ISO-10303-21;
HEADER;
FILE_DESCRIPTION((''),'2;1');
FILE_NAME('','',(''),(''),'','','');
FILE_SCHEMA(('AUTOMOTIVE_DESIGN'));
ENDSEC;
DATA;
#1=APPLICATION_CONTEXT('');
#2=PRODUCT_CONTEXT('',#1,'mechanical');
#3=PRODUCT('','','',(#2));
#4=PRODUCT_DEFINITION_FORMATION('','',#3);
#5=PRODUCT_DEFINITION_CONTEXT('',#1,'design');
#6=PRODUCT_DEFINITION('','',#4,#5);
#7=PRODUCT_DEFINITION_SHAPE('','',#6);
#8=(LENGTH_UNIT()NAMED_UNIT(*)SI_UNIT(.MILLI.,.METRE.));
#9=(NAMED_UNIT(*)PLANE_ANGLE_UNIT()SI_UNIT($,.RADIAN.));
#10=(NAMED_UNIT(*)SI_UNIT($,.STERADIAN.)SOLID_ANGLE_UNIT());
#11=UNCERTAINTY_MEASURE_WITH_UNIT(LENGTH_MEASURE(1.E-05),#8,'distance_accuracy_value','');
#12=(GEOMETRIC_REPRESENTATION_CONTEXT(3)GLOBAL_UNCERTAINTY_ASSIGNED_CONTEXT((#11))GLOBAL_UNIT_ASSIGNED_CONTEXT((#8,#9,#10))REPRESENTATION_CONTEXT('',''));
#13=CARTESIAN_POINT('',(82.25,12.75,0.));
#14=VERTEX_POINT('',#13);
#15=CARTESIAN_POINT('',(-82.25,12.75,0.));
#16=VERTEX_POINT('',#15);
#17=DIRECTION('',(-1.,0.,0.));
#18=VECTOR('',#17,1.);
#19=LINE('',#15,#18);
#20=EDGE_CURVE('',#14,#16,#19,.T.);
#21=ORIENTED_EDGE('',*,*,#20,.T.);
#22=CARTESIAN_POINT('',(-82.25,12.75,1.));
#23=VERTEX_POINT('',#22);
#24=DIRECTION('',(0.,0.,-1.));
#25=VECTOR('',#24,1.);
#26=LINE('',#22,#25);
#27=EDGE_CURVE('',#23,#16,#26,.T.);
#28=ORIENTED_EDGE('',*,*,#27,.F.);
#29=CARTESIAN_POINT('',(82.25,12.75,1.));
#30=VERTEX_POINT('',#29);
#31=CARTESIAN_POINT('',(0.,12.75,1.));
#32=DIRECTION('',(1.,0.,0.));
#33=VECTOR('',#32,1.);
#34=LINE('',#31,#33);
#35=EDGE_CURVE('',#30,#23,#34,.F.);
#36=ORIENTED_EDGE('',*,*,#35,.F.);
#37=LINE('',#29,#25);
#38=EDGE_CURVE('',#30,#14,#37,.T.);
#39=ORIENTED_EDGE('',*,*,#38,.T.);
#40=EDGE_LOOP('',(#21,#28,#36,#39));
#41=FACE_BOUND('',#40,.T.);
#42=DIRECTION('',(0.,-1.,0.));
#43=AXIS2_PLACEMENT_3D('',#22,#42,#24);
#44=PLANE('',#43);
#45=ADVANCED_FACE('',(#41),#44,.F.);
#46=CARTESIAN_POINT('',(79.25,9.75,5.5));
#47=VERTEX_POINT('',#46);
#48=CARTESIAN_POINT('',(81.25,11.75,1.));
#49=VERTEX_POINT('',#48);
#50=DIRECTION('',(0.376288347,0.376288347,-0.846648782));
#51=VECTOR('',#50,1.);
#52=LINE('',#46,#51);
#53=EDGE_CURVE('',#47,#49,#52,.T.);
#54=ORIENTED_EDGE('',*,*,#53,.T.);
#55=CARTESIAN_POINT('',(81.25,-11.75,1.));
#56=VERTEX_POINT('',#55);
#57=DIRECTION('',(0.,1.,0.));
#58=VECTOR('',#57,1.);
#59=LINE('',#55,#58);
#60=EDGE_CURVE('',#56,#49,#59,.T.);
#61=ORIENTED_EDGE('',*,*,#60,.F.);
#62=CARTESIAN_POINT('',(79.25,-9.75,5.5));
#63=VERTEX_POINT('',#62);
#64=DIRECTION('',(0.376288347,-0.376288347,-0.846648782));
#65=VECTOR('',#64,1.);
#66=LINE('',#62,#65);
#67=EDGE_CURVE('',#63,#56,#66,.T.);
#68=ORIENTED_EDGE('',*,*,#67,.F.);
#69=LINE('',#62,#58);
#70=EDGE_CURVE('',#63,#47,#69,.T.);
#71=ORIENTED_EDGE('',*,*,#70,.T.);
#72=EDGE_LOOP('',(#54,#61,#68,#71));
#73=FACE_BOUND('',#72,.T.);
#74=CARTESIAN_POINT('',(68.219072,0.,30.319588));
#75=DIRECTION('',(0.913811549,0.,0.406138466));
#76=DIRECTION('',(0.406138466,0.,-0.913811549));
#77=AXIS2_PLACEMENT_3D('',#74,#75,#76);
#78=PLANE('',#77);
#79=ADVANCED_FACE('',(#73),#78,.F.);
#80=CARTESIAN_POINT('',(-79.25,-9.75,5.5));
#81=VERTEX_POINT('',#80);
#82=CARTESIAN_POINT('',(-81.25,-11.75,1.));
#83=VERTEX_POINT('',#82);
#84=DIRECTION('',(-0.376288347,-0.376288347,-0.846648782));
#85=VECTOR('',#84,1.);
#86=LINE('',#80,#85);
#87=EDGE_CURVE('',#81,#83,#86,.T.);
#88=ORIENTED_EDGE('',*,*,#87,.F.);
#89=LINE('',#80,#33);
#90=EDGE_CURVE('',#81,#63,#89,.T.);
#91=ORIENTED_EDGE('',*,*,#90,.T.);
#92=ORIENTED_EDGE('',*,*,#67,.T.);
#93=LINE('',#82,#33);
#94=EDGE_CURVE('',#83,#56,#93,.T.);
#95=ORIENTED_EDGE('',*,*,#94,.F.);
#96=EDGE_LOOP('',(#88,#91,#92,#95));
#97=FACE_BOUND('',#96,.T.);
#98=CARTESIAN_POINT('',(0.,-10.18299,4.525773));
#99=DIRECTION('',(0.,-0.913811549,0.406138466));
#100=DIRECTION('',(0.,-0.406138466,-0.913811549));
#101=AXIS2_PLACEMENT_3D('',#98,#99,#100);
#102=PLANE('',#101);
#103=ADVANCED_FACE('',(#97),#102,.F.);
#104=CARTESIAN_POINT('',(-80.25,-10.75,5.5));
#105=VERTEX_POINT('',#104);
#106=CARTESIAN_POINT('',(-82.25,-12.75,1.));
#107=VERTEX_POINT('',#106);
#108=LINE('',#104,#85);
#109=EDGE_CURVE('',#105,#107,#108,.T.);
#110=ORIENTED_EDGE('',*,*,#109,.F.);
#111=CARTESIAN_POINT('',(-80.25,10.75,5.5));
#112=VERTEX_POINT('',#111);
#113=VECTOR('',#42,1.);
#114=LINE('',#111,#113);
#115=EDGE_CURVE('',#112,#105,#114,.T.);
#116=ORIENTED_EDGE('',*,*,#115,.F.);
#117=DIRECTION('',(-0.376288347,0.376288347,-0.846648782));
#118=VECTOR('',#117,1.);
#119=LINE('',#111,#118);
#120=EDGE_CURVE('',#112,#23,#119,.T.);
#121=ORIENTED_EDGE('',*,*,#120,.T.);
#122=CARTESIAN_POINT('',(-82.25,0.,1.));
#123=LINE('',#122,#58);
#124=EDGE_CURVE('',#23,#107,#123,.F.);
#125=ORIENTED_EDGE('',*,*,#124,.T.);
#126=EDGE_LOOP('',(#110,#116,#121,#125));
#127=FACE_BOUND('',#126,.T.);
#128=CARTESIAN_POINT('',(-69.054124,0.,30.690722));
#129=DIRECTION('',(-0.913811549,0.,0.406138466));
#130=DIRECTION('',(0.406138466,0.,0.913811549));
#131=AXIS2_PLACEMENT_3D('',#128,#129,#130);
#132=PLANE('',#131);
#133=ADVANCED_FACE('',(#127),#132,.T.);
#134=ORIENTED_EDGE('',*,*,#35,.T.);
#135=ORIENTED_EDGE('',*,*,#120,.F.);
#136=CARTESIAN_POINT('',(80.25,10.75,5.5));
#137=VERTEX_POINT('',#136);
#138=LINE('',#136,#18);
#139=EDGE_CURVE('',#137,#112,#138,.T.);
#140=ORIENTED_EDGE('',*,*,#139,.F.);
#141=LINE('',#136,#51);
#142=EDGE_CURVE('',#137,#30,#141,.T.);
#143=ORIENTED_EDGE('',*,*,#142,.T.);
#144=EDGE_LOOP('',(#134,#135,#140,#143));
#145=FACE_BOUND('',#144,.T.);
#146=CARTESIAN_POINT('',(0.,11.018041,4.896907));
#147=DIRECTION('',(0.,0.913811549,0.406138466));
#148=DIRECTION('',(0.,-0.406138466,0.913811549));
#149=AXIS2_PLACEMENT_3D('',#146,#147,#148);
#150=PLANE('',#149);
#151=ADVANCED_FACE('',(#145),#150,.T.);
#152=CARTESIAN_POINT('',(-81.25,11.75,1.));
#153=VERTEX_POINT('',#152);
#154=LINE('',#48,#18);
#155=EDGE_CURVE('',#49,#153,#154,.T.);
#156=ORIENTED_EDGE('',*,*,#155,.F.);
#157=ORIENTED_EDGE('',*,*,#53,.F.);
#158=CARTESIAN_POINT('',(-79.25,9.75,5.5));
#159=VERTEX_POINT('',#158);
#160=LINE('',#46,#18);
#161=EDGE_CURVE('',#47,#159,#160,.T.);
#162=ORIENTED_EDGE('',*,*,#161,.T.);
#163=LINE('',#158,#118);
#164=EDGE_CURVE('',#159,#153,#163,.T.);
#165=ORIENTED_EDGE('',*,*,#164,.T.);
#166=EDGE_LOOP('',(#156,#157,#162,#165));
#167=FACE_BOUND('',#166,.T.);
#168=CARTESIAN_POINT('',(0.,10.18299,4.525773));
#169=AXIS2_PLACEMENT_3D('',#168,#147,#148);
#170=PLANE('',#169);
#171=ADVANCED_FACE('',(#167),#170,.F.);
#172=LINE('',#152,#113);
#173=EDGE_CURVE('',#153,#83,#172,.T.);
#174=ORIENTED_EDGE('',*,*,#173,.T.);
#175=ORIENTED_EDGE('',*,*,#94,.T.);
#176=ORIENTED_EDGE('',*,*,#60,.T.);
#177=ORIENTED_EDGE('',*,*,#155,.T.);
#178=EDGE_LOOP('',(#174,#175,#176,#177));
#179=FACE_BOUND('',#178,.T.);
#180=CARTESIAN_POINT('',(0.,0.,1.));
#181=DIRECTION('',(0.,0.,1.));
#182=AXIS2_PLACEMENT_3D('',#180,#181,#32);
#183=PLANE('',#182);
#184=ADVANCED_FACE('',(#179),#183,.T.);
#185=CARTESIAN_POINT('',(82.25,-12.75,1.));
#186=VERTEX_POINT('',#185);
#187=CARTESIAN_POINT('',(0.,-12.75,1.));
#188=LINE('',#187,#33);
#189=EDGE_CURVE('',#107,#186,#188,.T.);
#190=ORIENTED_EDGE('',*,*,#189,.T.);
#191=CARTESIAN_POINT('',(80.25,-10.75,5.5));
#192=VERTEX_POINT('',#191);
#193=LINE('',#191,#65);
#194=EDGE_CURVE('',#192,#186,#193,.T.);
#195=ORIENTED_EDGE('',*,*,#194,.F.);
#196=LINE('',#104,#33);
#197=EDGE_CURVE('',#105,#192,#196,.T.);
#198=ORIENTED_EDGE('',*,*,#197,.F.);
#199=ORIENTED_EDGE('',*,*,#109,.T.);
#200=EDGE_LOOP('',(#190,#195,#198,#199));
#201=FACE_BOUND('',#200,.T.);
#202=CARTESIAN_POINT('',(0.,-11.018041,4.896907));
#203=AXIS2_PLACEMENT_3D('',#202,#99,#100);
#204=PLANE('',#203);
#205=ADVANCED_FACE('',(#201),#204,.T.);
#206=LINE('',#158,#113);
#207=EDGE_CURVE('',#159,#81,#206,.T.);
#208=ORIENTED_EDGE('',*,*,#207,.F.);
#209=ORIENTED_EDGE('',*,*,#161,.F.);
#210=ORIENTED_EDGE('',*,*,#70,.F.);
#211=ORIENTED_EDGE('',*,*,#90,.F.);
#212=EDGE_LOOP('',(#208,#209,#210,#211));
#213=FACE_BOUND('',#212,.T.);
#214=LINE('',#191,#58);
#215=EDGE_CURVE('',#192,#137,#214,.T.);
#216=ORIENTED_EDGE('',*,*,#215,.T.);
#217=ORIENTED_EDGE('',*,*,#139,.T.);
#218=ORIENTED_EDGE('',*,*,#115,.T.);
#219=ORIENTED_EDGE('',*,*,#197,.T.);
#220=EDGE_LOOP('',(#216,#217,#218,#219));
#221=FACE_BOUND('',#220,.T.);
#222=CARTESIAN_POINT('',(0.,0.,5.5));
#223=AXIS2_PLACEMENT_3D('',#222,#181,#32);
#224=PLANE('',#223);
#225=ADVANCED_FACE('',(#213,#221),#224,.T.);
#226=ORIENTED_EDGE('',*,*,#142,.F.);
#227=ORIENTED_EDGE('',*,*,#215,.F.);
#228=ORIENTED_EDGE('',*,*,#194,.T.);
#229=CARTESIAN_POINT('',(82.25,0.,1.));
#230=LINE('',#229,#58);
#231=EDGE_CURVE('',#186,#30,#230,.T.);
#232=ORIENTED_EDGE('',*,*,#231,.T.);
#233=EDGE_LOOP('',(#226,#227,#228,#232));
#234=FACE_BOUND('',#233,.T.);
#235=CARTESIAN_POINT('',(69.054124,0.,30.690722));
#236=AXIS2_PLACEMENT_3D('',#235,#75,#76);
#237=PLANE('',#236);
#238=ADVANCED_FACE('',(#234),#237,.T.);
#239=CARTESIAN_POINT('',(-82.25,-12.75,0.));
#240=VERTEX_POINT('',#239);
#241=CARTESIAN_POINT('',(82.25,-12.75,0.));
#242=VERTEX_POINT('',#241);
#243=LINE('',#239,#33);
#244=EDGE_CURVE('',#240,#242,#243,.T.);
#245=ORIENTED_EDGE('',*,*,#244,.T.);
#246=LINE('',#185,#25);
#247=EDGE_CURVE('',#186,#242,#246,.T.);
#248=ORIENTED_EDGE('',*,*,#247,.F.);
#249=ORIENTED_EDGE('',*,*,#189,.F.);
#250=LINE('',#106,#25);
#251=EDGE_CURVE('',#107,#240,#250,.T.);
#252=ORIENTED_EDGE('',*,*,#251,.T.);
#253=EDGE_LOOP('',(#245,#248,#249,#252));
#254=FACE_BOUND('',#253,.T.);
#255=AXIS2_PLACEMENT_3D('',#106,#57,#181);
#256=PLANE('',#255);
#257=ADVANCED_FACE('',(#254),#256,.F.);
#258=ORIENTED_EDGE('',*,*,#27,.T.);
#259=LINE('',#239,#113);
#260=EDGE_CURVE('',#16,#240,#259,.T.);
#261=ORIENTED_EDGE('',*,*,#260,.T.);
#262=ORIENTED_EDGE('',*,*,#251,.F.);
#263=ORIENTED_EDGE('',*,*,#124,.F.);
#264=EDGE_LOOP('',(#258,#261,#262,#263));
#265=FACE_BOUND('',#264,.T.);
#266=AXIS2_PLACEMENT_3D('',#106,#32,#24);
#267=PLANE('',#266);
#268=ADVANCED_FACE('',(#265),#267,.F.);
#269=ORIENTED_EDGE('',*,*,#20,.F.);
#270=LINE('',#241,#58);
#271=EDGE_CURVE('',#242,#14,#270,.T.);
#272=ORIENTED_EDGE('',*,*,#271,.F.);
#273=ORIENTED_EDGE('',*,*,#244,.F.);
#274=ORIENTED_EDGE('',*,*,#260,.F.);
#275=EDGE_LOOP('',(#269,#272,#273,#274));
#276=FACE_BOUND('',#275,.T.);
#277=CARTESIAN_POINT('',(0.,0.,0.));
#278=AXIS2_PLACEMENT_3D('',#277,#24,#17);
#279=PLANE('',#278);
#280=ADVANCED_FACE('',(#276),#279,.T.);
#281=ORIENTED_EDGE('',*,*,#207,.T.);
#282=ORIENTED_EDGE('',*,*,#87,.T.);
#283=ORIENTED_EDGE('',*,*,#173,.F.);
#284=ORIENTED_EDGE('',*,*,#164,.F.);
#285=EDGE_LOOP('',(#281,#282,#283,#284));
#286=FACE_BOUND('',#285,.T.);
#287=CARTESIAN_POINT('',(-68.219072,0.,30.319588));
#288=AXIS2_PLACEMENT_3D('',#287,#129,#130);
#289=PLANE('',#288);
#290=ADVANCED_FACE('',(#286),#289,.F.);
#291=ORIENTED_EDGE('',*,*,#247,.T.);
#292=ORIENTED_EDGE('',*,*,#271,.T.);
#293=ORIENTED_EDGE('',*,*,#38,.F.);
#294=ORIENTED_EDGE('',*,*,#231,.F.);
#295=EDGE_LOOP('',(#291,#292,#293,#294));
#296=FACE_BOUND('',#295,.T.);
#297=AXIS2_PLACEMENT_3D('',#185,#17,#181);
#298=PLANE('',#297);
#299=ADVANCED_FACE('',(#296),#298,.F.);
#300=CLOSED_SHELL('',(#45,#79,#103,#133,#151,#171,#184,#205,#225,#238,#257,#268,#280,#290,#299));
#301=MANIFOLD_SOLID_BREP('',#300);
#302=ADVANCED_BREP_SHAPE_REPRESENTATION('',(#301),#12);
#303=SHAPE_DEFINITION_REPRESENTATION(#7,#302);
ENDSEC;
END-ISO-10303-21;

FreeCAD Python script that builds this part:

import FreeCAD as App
import Part
import Sketcher
from FreeCAD import Vector
Q = App.Units.Quantity

doc = App.newDocument("Part")
body = doc.addObject("PartDesign::Body", "Body")

# Sketch on XY plane
sketch1 = body.newObject("Sketcher::SketchObject", "Sketch")
sketch1.AttachmentSupport = (doc.getObject("XY_Plane"), [""])
sketch1.MapMode = "FlatFace"
sketch1.addGeometry(Part.LineSegment(Vector(-82.25, 12.75, 0), Vector(-82.25, -12.75, 0)), False)
sketch1.addGeometry(Part.LineSegment(Vector(-82.25, -12.75, 0), Vector(82.25, -12.75, 0)), False)
sketch1.addGeometry(Part.LineSegment(Vector(82.25, -12.75, 0), Vector(82.25, 12.75, 0)), False)
sketch1.addGeometry(Part.LineSegment(Vector(82.25, 12.75, 0), Vector(-82.25, 12.75, 0)), False)
sketch1.addConstraint(Sketcher.Constraint("Coincident", 0, 2, 1, 1))
sketch1.addConstraint(Sketcher.Constraint("Coincident", 1, 2, 2, 1))
sketch1.addConstraint(Sketcher.Constraint("Coincident", 2, 2, 3, 1))
sketch1.addConstraint(Sketcher.Constraint("Coincident", 3, 2, 0, 1))
sketch1.addConstraint(Sketcher.Constraint("Vertical", 0))
sketch1.addConstraint(Sketcher.Constraint("Horizontal", 1))
sketch1.addConstraint(Sketcher.Constraint("Vertical", 2))
sketch1.addConstraint(Sketcher.Constraint("Horizontal", 3))
sketch1.addConstraint(Sketcher.Constraint("Symmetric", 0, 2, 2, 2, -1, 1))
sketch1.addConstraint(Sketcher.Constraint("DistanceX", 1, 1, 1, 2, Q("164.5 mm")))
sketch1.addConstraint(Sketcher.Constraint("DistanceY", 0, 2, 0, 1, Q("25.5 mm")))
pad1 = body.newObject("PartDesign::Pad", "Pad")
pad1.Profile = sketch1
pad1.Length = 1

# Sketch on XY plane
sketch2 = body.newObject("Sketcher::SketchObject", "Sketch001")
sketch2.AttachmentSupport = (doc.getObject("XY_Plane"), [""])
sketch2.MapMode = "FlatFace"
sketch2.AttachmentOffset = App.Placement(Vector(0, 0, 5.5), App.Rotation())
sketch2.addGeometry(Part.LineSegment(Vector(-80.25, 10.75, 0), Vector(-80.25, -10.75, 0)), False)
sketch2.addGeometry(Part.LineSegment(Vector(-80.25, -10.75, 0), Vector(80.25, -10.75, 0)), False)
sketch2.addGeometry(Part.LineSegment(Vector(80.25, -10.75, 0), Vector(80.25, 10.75, 0)), False)
sketch2.addGeometry(Part.LineSegment(Vector(80.25, 10.75, 0), Vector(-80.25, 10.75, 0)), False)
sketch2.addConstraint(Sketcher.Constraint("Coincident", 0, 2, 1, 1))
sketch2.addConstraint(Sketcher.Constraint("Coincident", 1, 2, 2, 1))
sketch2.addConstraint(Sketcher.Constraint("Coincident", 2, 2, 3, 1))
sketch2.addConstraint(Sketcher.Constraint("Coincident", 3, 2, 0, 1))
sketch2.addConstraint(Sketcher.Constraint("Vertical", 0))
sketch2.addConstraint(Sketcher.Constraint("Horizontal", 1))
sketch2.addConstraint(Sketcher.Constraint("Vertical", 2))
sketch2.addConstraint(Sketcher.Constraint("Horizontal", 3))
sketch2.addConstraint(Sketcher.Constraint("Symmetric", 0, 2, 2, 2, -1, 1))
sketch2.addConstraint(Sketcher.Constraint("DistanceX", 1, 1, 1, 2, Q("160.5 mm")))
sketch2.addConstraint(Sketcher.Constraint("DistanceY", 0, 2, 0, 1, Q("21.5 mm")))

# Sketch on XY plane
sketch3 = body.newObject("Sketcher::SketchObject", "Sketch002")
sketch3.AttachmentSupport = (doc.getObject("XY_Plane"), [""])
sketch3.MapMode = "FlatFace"
sketch3.AttachmentOffset = App.Placement(Vector(0, 0, 1), App.Rotation())
sketch3.addGeometry(Part.LineSegment(Vector(-82.25, 12.75, 0), Vector(-82.25, -12.75, 0)), False)
sketch3.addGeometry(Part.LineSegment(Vector(-82.25, -12.75, 0), Vector(82.25, -12.75, 0)), False)
sketch3.addGeometry(Part.LineSegment(Vector(82.25, -12.75, 0), Vector(82.25, 12.75, 0)), False)
sketch3.addGeometry(Part.LineSegment(Vector(82.25, 12.75, 0), Vector(-82.25, 12.75, 0)), False)
sketch3.addConstraint(Sketcher.Constraint("Coincident", 0, 2, 1, 1))
sketch3.addConstraint(Sketcher.Constraint("Coincident", 1, 2, 2, 1))
sketch3.addConstraint(Sketcher.Constraint("Coincident", 2, 2, 3, 1))
sketch3.addConstraint(Sketcher.Constraint("Coincident", 3, 2, 0, 1))
sketch3.addConstraint(Sketcher.Constraint("Vertical", 0))
sketch3.addConstraint(Sketcher.Constraint("Horizontal", 1))
sketch3.addConstraint(Sketcher.Constraint("Vertical", 2))
sketch3.addConstraint(Sketcher.Constraint("Horizontal", 3))
sketch3.addConstraint(Sketcher.Constraint("Symmetric", 0, 2, 2, 2, -1, 1))
sketch3.addConstraint(Sketcher.Constraint("DistanceX", 1, 1, 1, 2, Q("164.5 mm")))
sketch3.addConstraint(Sketcher.Constraint("DistanceY", 0, 2, 0, 1, Q("25.5 mm")))

additiveloft = body.newObject("PartDesign::AdditiveLoft", "AdditiveLoft")
additiveloft.Profile = sketch2
additiveloft.Sections = [sketch3]

# Sketch on XY plane
sketch4 = body.newObject("Sketcher::SketchObject", "Sketch003")
sketch4.AttachmentSupport = (doc.getObject("XY_Plane"), [""])
sketch4.MapMode = "FlatFace"
sketch4.AttachmentOffset = App.Placement(Vector(0, 0, 5.5), App.Rotation())
sketch4.addGeometry(Part.LineSegment(Vector(-79.25, 9.75, 0), Vector(-79.25, -9.75, 0)), False)
sketch4.addGeometry(Part.LineSegment(Vector(-79.25, -9.75, 0), Vector(79.25, -9.75, 0)), False)
sketch4.addGeometry(Part.LineSegment(Vector(79.25, -9.75, 0), Vector(79.25, 9.75, 0)), False)
sketch4.addGeometry(Part.LineSegment(Vector(79.25, 9.75, 0), Vector(-79.25, 9.75, 0)), False)
sketch4.addConstraint(Sketcher.Constraint("Coincident", 0, 2, 1, 1))
sketch4.addConstraint(Sketcher.Constraint("Coincident", 1, 2, 2, 1))
sketch4.addConstraint(Sketcher.Constraint("Coincident", 2, 2, 3, 1))
sketch4.addConstraint(Sketcher.Constraint("Coincident", 3, 2, 0, 1))
sketch4.addConstraint(Sketcher.Constraint("Vertical", 0))
sketch4.addConstraint(Sketcher.Constraint("Horizontal", 1))
sketch4.addConstraint(Sketcher.Constraint("Vertical", 2))
sketch4.addConstraint(Sketcher.Constraint("Horizontal", 3))
sketch4.addConstraint(Sketcher.Constraint("Symmetric", 0, 2, 2, 2, -1, 1))
sketch4.addConstraint(Sketcher.Constraint("DistanceX", 1, 1, 1, 2, Q("158.5 mm")))
sketch4.addConstraint(Sketcher.Constraint("DistanceY", 0, 2, 0, 1, Q("19.5 mm")))

# Sketch on XY plane
sketch5 = body.newObject("Sketcher::SketchObject", "Sketch004")
sketch5.AttachmentSupport = (doc.getObject("XY_Plane"), [""])
sketch5.MapMode = "FlatFace"
sketch5.AttachmentOffset = App.Placement(Vector(0, 0, 1), App.Rotation())
sketch5.addGeometry(Part.LineSegment(Vector(-81.25, 11.75, 0), Vector(-81.25, -11.75, 0)), False)
sketch5.addGeometry(Part.LineSegment(Vector(-81.25, -11.75, 0), Vector(81.25, -11.75, 0)), False)
sketch5.addGeometry(Part.LineSegment(Vector(81.25, -11.75, 0), Vector(81.25, 11.75, 0)), False)
sketch5.addGeometry(Part.LineSegment(Vector(81.25, 11.75, 0), Vector(-81.25, 11.75, 0)), False)
sketch5.addConstraint(Sketcher.Constraint("Coincident", 0, 2, 1, 1))
sketch5.addConstraint(Sketcher.Constraint("Coincident", 1, 2, 2, 1))
sketch5.addConstraint(Sketcher.Constraint("Coincident", 2, 2, 3, 1))
sketch5.addConstraint(Sketcher.Constraint("Coincident", 3, 2, 0, 1))
sketch5.addConstraint(Sketcher.Constraint("Vertical", 0))
sketch5.addConstraint(Sketcher.Constraint("Horizontal", 1))
sketch5.addConstraint(Sketcher.Constraint("Vertical", 2))
sketch5.addConstraint(Sketcher.Constraint("Horizontal", 3))
sketch5.addConstraint(Sketcher.Constraint("Symmetric", 0, 2, 2, 2, -1, 1))
sketch5.addConstraint(Sketcher.Constraint("DistanceX", 1, 1, 1, 2, Q("162.5 mm")))
sketch5.addConstraint(Sketcher.Constraint("DistanceY", 0, 2, 0, 1, Q("23.5 mm")))

subtractiveloft = body.newObject("PartDesign::SubtractiveLoft", "SubtractiveLoft")
subtractiveloft.Profile = sketch4
subtractiveloft.Sections = [sketch5]

doc.recompute()
